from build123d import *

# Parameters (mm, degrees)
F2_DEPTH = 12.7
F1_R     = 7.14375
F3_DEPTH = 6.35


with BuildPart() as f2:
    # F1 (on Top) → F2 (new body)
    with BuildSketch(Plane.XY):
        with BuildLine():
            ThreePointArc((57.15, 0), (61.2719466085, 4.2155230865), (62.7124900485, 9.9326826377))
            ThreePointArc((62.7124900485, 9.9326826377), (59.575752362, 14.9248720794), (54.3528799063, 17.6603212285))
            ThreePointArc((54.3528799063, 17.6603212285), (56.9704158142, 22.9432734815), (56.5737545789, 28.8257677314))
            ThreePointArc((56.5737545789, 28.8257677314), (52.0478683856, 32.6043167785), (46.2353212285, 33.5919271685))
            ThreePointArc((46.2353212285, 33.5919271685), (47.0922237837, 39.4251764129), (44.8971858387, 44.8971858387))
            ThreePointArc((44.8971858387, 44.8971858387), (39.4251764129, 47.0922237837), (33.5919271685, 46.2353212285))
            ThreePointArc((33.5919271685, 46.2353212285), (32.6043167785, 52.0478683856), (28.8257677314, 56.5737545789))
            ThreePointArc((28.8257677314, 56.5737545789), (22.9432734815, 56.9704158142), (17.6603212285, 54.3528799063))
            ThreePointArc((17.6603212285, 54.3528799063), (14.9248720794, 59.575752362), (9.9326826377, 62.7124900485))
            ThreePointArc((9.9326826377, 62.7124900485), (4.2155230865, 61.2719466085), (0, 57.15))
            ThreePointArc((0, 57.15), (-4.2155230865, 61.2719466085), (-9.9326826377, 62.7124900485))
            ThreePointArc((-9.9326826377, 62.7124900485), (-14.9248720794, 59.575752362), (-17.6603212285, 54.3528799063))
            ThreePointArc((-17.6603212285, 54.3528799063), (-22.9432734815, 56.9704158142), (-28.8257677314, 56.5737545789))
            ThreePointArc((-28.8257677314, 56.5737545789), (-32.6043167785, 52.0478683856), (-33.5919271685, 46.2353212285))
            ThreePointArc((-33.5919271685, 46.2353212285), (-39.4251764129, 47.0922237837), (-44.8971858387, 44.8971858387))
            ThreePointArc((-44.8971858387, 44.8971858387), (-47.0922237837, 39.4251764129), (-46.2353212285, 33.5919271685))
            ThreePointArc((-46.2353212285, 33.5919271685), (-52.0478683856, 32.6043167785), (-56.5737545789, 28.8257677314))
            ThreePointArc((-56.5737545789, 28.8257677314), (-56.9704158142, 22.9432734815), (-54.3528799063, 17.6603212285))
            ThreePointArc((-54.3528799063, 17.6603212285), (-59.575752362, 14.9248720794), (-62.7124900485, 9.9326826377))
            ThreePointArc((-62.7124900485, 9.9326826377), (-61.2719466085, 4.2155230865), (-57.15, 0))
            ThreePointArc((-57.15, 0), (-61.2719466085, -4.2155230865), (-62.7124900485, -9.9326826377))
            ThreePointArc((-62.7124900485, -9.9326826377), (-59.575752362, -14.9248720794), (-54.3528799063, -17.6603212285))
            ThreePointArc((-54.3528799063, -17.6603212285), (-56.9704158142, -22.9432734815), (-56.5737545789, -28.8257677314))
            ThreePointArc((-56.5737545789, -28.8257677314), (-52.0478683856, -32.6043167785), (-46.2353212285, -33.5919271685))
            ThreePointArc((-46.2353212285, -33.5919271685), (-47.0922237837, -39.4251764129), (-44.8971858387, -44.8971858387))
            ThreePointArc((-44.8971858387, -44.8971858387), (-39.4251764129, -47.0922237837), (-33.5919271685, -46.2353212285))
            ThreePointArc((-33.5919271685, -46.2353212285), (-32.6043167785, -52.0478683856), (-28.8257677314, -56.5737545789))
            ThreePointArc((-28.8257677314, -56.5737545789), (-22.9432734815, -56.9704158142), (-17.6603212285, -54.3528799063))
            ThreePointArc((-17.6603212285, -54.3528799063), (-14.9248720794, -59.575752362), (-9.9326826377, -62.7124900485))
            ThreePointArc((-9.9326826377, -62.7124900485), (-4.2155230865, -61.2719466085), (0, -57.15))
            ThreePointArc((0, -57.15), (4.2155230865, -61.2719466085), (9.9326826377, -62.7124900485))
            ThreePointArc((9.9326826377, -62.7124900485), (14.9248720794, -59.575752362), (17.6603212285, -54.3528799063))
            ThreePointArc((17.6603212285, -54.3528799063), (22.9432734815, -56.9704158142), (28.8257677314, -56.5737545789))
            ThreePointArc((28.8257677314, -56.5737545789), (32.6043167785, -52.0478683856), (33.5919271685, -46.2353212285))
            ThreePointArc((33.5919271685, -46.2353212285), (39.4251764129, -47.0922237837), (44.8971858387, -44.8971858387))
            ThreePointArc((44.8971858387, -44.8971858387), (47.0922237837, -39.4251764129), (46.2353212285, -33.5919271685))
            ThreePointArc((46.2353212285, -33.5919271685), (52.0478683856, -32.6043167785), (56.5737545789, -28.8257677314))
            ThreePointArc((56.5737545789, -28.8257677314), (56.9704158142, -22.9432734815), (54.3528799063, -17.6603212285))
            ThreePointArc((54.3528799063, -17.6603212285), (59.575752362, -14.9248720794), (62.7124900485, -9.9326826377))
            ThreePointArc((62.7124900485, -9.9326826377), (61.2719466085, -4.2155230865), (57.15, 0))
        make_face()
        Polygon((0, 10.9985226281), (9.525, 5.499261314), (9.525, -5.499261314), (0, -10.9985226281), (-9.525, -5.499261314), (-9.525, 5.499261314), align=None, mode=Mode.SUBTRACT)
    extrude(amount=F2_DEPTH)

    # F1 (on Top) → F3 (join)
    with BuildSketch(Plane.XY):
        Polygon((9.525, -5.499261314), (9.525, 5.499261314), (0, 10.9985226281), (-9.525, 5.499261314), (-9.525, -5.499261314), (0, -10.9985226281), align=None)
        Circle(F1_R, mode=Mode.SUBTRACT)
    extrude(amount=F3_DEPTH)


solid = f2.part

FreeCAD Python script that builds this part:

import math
import FreeCAD as App
import Part
import Sketcher

V = App.Vector
Q = App.Units.Quantity


def add_polygon(sketch, points):
    """Adds a closed chain of lines whose ends are joined by coincident constraints."""
    first, n = sketch.GeometryCount, len(points)
    for a, b in zip(points, points[1:] + points[:1]):
        sketch.addGeometry(Part.LineSegment(App.Vector(*a, 0), App.Vector(*b, 0)), False)
    for i in range(n):
        sketch.addConstraint(Sketcher.Constraint("Coincident", first + i, 2, first + (i + 1) % n, 1))

doc = App.newDocument("Part")
body = doc.addObject("PartDesign::Body", "Body")

# Sketch on XY plane
sketch1 = body.newObject("Sketcher::SketchObject", "Sketch")
sketch1.AttachmentSupport = (doc.getObject("XY_Plane"), [""])
sketch1.MapMode = "FlatFace"
sketch1.addGeometry(Part.ArcOfCircle(Part.Circle(V(51, 10, 0), V(0, 0, 1), 11), math.radians(-59), math.radians(1)), False)  # 0
sketch1.addGeometry(Part.ArcOfCircle(Part.Circle(V(52, 7, 0), V(0, 0, 1), 11), math.radians(17), math.radians(77)), False)  # 1
sketch1.addGeometry(Part.ArcOfCircle(Part.Circle(V(46, 25, 0), V(0, 0, 1), 11), math.radians(-41), math.radians(19)), False)  # 2
sketch1.addGeometry(Part.ArcOfCircle(Part.Circle(V(47, 22, 0), V(0, 0, 1), 11), math.radians(35), math.radians(95)), False)  # 3
sketch1.addGeometry(Part.ArcOfCircle(Part.Circle(V(36, 38, 0), V(0, 0, 1), 11), math.radians(-23), math.radians(37)), False)  # 4
sketch1.addGeometry(Part.ArcOfCircle(Part.Circle(V(38, 36, 0), V(0, 0, 1), 11), math.radians(53), math.radians(113)), False)  # 5
sketch1.addGeometry(Part.ArcOfCircle(Part.Circle(V(22, 47, 0), V(0, 0, 1), 11), math.radians(-5), math.radians(55)), False)  # 6
sketch1.addGeometry(Part.ArcOfCircle(Part.Circle(V(25, 46, 0), V(0, 0, 1), 11), math.radians(71), math.radians(131)), False)  # 7
sketch1.addGeometry(Part.ArcOfCircle(Part.Circle(V(7, 52, 0), V(0, 0, 1), 11), math.radians(13), math.radians(73)), False)  # 8
sketch1.addGeometry(Part.ArcOfCircle(Part.Circle(V(10, 51, 0), V(0, 0, 1), 11), math.radians(89), math.radians(149)), False)  # 9
sketch1.addGeometry(Part.ArcOfCircle(Part.Circle(V(-10, 51, 0), V(0, 0, 1), 11), math.radians(31), math.radians(91)), False)  # 10
sketch1.addGeometry(Part.ArcOfCircle(Part.Circle(V(-7, 52, 0), V(0, 0, 1), 11), math.radians(107), math.radians(167)), False)  # 11
sketch1.addGeometry(Part.ArcOfCircle(Part.Circle(V(-25, 46, 0), V(0, 0, 1), 11), math.radians(49), math.radians(109)), False)  # 12
sketch1.addGeometry(Part.ArcOfCircle(Part.Circle(V(-22, 47, 0), V(0, 0, 1), 11), math.radians(125), math.radians(185)), False)  # 13
sketch1.addGeometry(Part.ArcOfCircle(Part.Circle(V(-38, 36, 0), V(0, 0, 1), 11), math.radians(67), math.radians(127)), False)  # 14
sketch1.addGeometry(Part.ArcOfCircle(Part.Circle(V(-36, 38, 0), V(0, 0, 1), 11), math.radians(143), math.radians(203)), False)  # 15
sketch1.addGeometry(Part.ArcOfCircle(Part.Circle(V(-47, 22, 0), V(0, 0, 1), 11), math.radians(85), math.radians(145)), False)  # 16
sketch1.addGeometry(Part.ArcOfCircle(Part.Circle(V(-46, 25, 0), V(0, 0, 1), 11), math.radians(161), math.radians(221)), False)  # 17
sketch1.addGeometry(Part.ArcOfCircle(Part.Circle(V(-52, 7, 0), V(0, 0, 1), 11), math.radians(103), math.radians(163)), False)  # 18
sketch1.addGeometry(Part.ArcOfCircle(Part.Circle(V(-51, 10, 0), V(0, 0, 1), 11), math.radians(179), math.radians(239)), False)  # 19
sketch1.addGeometry(Part.ArcOfCircle(Part.Circle(V(-51, -10, 0), V(0, 0, 1), 11), math.radians(121), math.radians(181)), False)  # 20
sketch1.addGeometry(Part.ArcOfCircle(Part.Circle(V(-52, -7, 0), V(0, 0, 1), 11), math.radians(-163), math.radians(-103)), False)  # 21
sketch1.addGeometry(Part.ArcOfCircle(Part.Circle(V(-46, -25, 0), V(0, 0, 1), 11), math.radians(139), math.radians(199)), False)  # 22
sketch1.addGeometry(Part.ArcOfCircle(Part.Circle(V(-47, -22, 0), V(0, 0, 1), 11), math.radians(-145), math.radians(-85)), False)  # 23
sketch1.addGeometry(Part.ArcOfCircle(Part.Circle(V(-36, -38, 0), V(0, 0, 1), 11), math.radians(157), math.radians(217)), False)  # 24
sketch1.addGeometry(Part.ArcOfCircle(Part.Circle(V(-38, -36, 0), V(0, 0, 1), 11), math.radians(-127), math.radians(-67)), False)  # 25
sketch1.addGeometry(Part.ArcOfCircle(Part.Circle(V(-22, -47, 0), V(0, 0, 1), 11), math.radians(175), math.radians(235)), False)  # 26
sketch1.addGeometry(Part.ArcOfCircle(Part.Circle(V(-25, -46, 0), V(0, 0, 1), 11), math.radians(-109), math.radians(-49)), False)  # 27
sketch1.addGeometry(Part.ArcOfCircle(Part.Circle(V(-7, -52, 0), V(0, 0, 1), 11), math.radians(-167), math.radians(-107)), False)  # 28
sketch1.addGeometry(Part.ArcOfCircle(Part.Circle(V(-10, -51, 0), V(0, 0, 1), 11), math.radians(-91), math.radians(-31)), False)  # 29
sketch1.addGeometry(Part.ArcOfCircle(Part.Circle(V(10, -51, 0), V(0, 0, 1), 11), math.radians(-149), math.radians(-89)), False)  # 30
sketch1.addGeometry(Part.ArcOfCircle(Part.Circle(V(7, -52, 0), V(0, 0, 1), 11), math.radians(-73), math.radians(-13)), False)  # 31
sketch1.addGeometry(Part.ArcOfCircle(Part.Circle(V(25, -46, 0), V(0, 0, 1), 11), math.radians(-131), math.radians(-71)), False)  # 32
sketch1.addGeometry(Part.ArcOfCircle(Part.Circle(V(22, -47, 0), V(0, 0, 1), 11), math.radians(-55), math.radians(5)), False)  # 33
sketch1.addGeometry(Part.ArcOfCircle(Part.Circle(V(38, -36, 0), V(0, 0, 1), 11), math.radians(-113), math.radians(-53)), False)  # 34
sketch1.addGeometry(Part.ArcOfCircle(Part.Circle(V(36, -38, 0), V(0, 0, 1), 11), math.radians(-37), math.radians(23)), False)  # 35
sketch1.addGeometry(Part.ArcOfCircle(Part.Circle(V(47, -22, 0), V(0, 0, 1), 11), math.radians(-95), math.radians(-35)), False)  # 36
sketch1.addGeometry(Part.ArcOfCircle(Part.Circle(V(46, -25, 0), V(0, 0, 1), 11), math.radians(-19), math.radians(41)), False)  # 37
sketch1.addGeometry(Part.ArcOfCircle(Part.Circle(V(52, -7, 0), V(0, 0, 1), 11), math.radians(-77), math.radians(-17)), False)  # 38
sketch1.addGeometry(Part.ArcOfCircle(Part.Circle(V(51, -10, 0), V(0, 0, 1), 11), math.radians(-1), math.radians(59)), False)  # 39
add_polygon(sketch1, [(-10, 5), (0, 11), (10, 5), (10, -5), (0, -11), (-10, -5)])  # lines 40-45
sketch1.addConstraint(Sketcher.Constraint("Coincident", 0, 2, 1, 1))
sketch1.addConstraint(Sketcher.Constraint("Coincident", 1, 2, 2, 1))
sketch1.addConstraint(Sketcher.Constraint("Coincident", 2, 2, 3, 1))
sketch1.addConstraint(Sketcher.Constraint("Coincident", 3, 2, 4, 1))
sketch1.addConstraint(Sketcher.Constraint("Coincident", 4, 2, 5, 1))
sketch1.addConstraint(Sketcher.Constraint("Coincident", 5, 2, 6, 1))
sketch1.addConstraint(Sketcher.Constraint("Coincident", 6, 2, 7, 1))
sketch1.addConstraint(Sketcher.Constraint("Coincident", 7, 2, 8, 1))
sketch1.addConstraint(Sketcher.Constraint("Coincident", 8, 2, 9, 1))
sketch1.addConstraint(Sketcher.Constraint("Coincident", 9, 2, 10, 1))
sketch1.addConstraint(Sketcher.Constraint("Coincident", 10, 2, 11, 1))
sketch1.addConstraint(Sketcher.Constraint("Coincident", 11, 2, 12, 1))
sketch1.addConstraint(Sketcher.Constraint("Coincident", 12, 2, 13, 1))
sketch1.addConstraint(Sketcher.Constraint("Coincident", 13, 2, 14, 1))
sketch1.addConstraint(Sketcher.Constraint("Coincident", 14, 2, 15, 1))
sketch1.addConstraint(Sketcher.Constraint("Coincident", 15, 2, 16, 1))
sketch1.addConstraint(Sketcher.Constraint("Coincident", 16, 2, 17, 1))
sketch1.addConstraint(Sketcher.Constraint("Coincident", 17, 2, 18, 1))
sketch1.addConstraint(Sketcher.Constraint("Coincident", 18, 2, 19, 1))
sketch1.addConstraint(Sketcher.Constraint("Coincident", 19, 2, 20, 1))
sketch1.addConstraint(Sketcher.Constraint("Coincident", 20, 2, 21, 1))
sketch1.addConstraint(Sketcher.Constraint("Coincident", 21, 2, 22, 1))
sketch1.addConstraint(Sketcher.Constraint("Coincident", 22, 2, 23, 1))
sketch1.addConstraint(Sketcher.Constraint("Coincident", 23, 2, 24, 1))
sketch1.addConstraint(Sketcher.Constraint("Coincident", 24, 2, 25, 1))
sketch1.addConstraint(Sketcher.Constraint("Coincident", 25, 2, 26, 1))
sketch1.addConstraint(Sketcher.Constraint("Coincident", 26, 2, 27, 1))
sketch1.addConstraint(Sketcher.Constraint("Coincident", 27, 2, 28, 1))
sketch1.addConstraint(Sketcher.Constraint("Coincident", 28, 2, 29, 1))
sketch1.addConstraint(Sketcher.Constraint("Coincident", 29, 2, 30, 1))
sketch1.addConstraint(Sketcher.Constraint("Coincident", 30, 2, 31, 1))
sketch1.addConstraint(Sketcher.Constraint("Coincident", 31, 2, 32, 1))
sketch1.addConstraint(Sketcher.Constraint("Coincident", 32, 2, 33, 1))
sketch1.addConstraint(Sketcher.Constraint("Coincident", 33, 2, 34, 1))
sketch1.addConstraint(Sketcher.Constraint("Coincident", 34, 2, 35, 1))
sketch1.addConstraint(Sketcher.Constraint("Coincident", 35, 2, 36, 1))
sketch1.addConstraint(Sketcher.Constraint("Coincident", 36, 2, 37, 1))
sketch1.addConstraint(Sketcher.Constraint("Coincident", 37, 2, 38, 1))
sketch1.addConstraint(Sketcher.Constraint("Coincident", 38, 2, 39, 1))
sketch1.addConstraint(Sketcher.Constraint("Coincident", 39, 2, 0, 1))
sketch1.addConstraint(Sketcher.Constraint("Vertical", 42))
sketch1.addConstraint(Sketcher.Constraint("Vertical", 45))
sketch1.addConstraint(Sketcher.Constraint("Equal", 0, 1))
sketch1.addConstraint(Sketcher.Constraint("Equal", 1, 2))
sketch1.addConstraint(Sketcher.Constraint("Equal", 2, 3))
sketch1.addConstraint(Sketcher.Constraint("Equal", 3, 4))
sketch1.addConstraint(Sketcher.Constraint("Equal", 4, 5))
sketch1.addConstraint(Sketcher.Constraint("Equal", 5, 6))
sketch1.addConstraint(Sketcher.Constraint("Equal", 6, 7))
sketch1.addConstraint(Sketcher.Constraint("Equal", 7, 8))
sketch1.addConstraint(Sketcher.Constraint("Equal", 8, 9))
sketch1.addConstraint(Sketcher.Constraint("Equal", 9, 10))
sketch1.addConstraint(Sketcher.Constraint("Equal", 10, 11))
sketch1.addConstraint(Sketcher.Constraint("Equal", 11, 12))
sketch1.addConstraint(Sketcher.Constraint("Equal", 12, 13))
sketch1.addConstraint(Sketcher.Constraint("Equal", 13, 14))
sketch1.addConstraint(Sketcher.Constraint("Equal", 14, 15))
sketch1.addConstraint(Sketcher.Constraint("Equal", 15, 16))
sketch1.addConstraint(Sketcher.Constraint("Equal", 16, 17))
sketch1.addConstraint(Sketcher.Constraint("Equal", 17, 18))
sketch1.addConstraint(Sketcher.Constraint("Equal", 18, 19))
sketch1.addConstraint(Sketcher.Constraint("Equal", 19, 20))
sketch1.addConstraint(Sketcher.Constraint("Equal", 20, 21))
sketch1.addConstraint(Sketcher.Constraint("Equal", 21, 22))
sketch1.addConstraint(Sketcher.Constraint("Equal", 22, 23))
sketch1.addConstraint(Sketcher.Constraint("Equal", 23, 24))
sketch1.addConstraint(Sketcher.Constraint("Equal", 24, 25))
sketch1.addConstraint(Sketcher.Constraint("Equal", 25, 26))
sketch1.addConstraint(Sketcher.Constraint("Equal", 26, 27))
sketch1.addConstraint(Sketcher.Constraint("Equal", 27, 28))
sketch1.addConstraint(Sketcher.Constraint("Equal", 28, 29))
sketch1.addConstraint(Sketcher.Constraint("Equal", 29, 30))
sketch1.addConstraint(Sketcher.Constraint("Equal", 30, 31))
sketch1.addConstraint(Sketcher.Constraint("Equal", 31, 32))
sketch1.addConstraint(Sketcher.Constraint("Equal", 32, 33))
sketch1.addConstraint(Sketcher.Constraint("Equal", 33, 34))
sketch1.addConstraint(Sketcher.Constraint("Equal", 34, 35))
sketch1.addConstraint(Sketcher.Constraint("Equal", 35, 36))
sketch1.addConstraint(Sketcher.Constraint("Equal", 36, 37))
sketch1.addConstraint(Sketcher.Constraint("Equal", 37, 38))
sketch1.addConstraint(Sketcher.Constraint("Equal", 38, 39))
sketch1.addConstraint(Sketcher.Constraint("Symmetric", 0, 3, 20, 3, -1, 1))
sketch1.addConstraint(Sketcher.Constraint("Symmetric", 1, 3, 21, 3, -1, 1))
sketch1.addConstraint(Sketcher.Constraint("Symmetric", 2, 3, 22, 3, -1, 1))
sketch1.addConstraint(Sketcher.Constraint("Symmetric", 3, 3, 23, 3, -1, 1))
sketch1.addConstraint(Sketcher.Constraint("Symmetric", 4, 3, 24, 3, -1, 1))
sketch1.addConstraint(Sketcher.Constraint("Symmetric", 5, 3, 25, 3, -1, 1))
sketch1.addConstraint(Sketcher.Constraint("Symmetric", 6, 3, 26, 3, -1, 1))
sketch1.addConstraint(Sketcher.Constraint("Symmetric", 7, 3, 27, 3, -1, 1))
sketch1.addConstraint(Sketcher.Constraint("Symmetric", 8, 3, 28, 3, -1, 1))
sketch1.addConstraint(Sketcher.Constraint("Symmetric", 9, 3, 29, 3, -1, 1))
sketch1.addConstraint(Sketcher.Constraint("Symmetric", 10, 3, 30, 3, -1, 1))
sketch1.addConstraint(Sketcher.Constraint("Symmetric", 11, 3, 31, 3, -1, 1))
sketch1.addConstraint(Sketcher.Constraint("Symmetric", 12, 3, 32, 3, -1, 1))
sketch1.addConstraint(Sketcher.Constraint("Symmetric", 13, 3, 33, 3, -1, 1))
sketch1.addConstraint(Sketcher.Constraint("Symmetric", 14, 3, 34, 3, -1, 1))
sketch1.addConstraint(Sketcher.Constraint("Symmetric", 15, 3, 35, 3, -1, 1))
sketch1.addConstraint(Sketcher.Constraint("Symmetric", 16, 3, 36, 3, -1, 1))
sketch1.addConstraint(Sketcher.Constraint("Symmetric", 17, 3, 37, 3, -1, 1))
sketch1.addConstraint(Sketcher.Constraint("Symmetric", 18, 3, 38, 3, -1, 1))
sketch1.addConstraint(Sketcher.Constraint("Symmetric", 19, 3, 39, 3, -1, 1))
sketch1.addConstraint(Sketcher.Constraint("Symmetric", 40, 2, 43, 2, -1, 1))
sketch1.addConstraint(Sketcher.Constraint("Symmetric", 41, 2, 44, 2, -1, 1))
sketch1.addConstraint(Sketcher.Constraint("Symmetric", 9, 3, 10, 3, -2))
sketch1.addConstraint(Sketcher.Constraint("Symmetric", 8, 3, 11, 3, -2))
sketch1.addConstraint(Sketcher.Constraint("Symmetric", 7, 3, 12, 3, -2))
sketch1.addConstraint(Sketcher.Constraint("Symmetric", 6, 3, 13, 3, -2))
sketch1.addConstraint(Sketcher.Constraint("Symmetric", 5, 3, 14, 3, -2))
sketch1.addConstraint(Sketcher.Constraint("Symmetric", 4, 3, 15, 3, -2))
sketch1.addConstraint(Sketcher.Constraint("Symmetric", 3, 3, 16, 3, -2))
sketch1.addConstraint(Sketcher.Constraint("Symmetric", 2, 3, 17, 3, -2))
sketch1.addConstraint(Sketcher.Constraint("Symmetric", 1, 3, 18, 3, -2))
sketch1.addConstraint(Sketcher.Constraint("Symmetric", 0, 3, 19, 3, -2))
sketch1.addConstraint(Sketcher.Constraint("PointOnObject", 40, 2, -2))
sketch1.addConstraint(Sketcher.Constraint("Parallel", 40, 43))
sketch1.addConstraint(Sketcher.Constraint("Horizontal", 42, 2, 44, 2))
sketch1.addConstraint(Sketcher.Constraint("Angle", 40, Q("30 deg")))
sketch1.addConstraint(Sketcher.Constraint("DistanceY", -1, 1, 9, 2, Q("2.25 in")))
sketch1.addConstraint(Sketcher.Constraint("DistanceX", 19, 2, -1, 1, Q("2.25 in")))
sketch1.addConstraint(Sketcher.Constraint("DistanceX", -1, 1, 41, 2, Q("0.375 in")))
sketch1.addConstraint(Sketcher.Constraint("Radius", 0, Q("11.310871 mm")))
sketch1.addConstraint(Sketcher.Constraint("DistanceX", -1, 1, 3, 3, Q("47.312399 mm")))
sketch1.addConstraint(Sketcher.Constraint("DistanceY", -1, 1, 6, 3, Q("47.312399 mm")))
sketch1.addConstraint(Sketcher.Constraint("DistanceY", 42, 2, 42, 1, Q("10.998523 mm")))
sketch1.addConstraint(Sketcher.Constraint("DistanceY", -1, 1, 1, 3, Q("6.619092 mm")))
sketch1.addConstraint(Sketcher.Constraint("DistanceX", -1, 1, 8, 3, Q("6.619092 mm")))
sketch1.addConstraint(Sketcher.Constraint("DistanceX", -1, 1, 0, 2, Q("62.71249 mm")))
sketch1.addConstraint(Sketcher.Constraint("DistanceX", -1, 1, 1, 2, Q("54.35288 mm")))
sketch1.addConstraint(Sketcher.Constraint("DistanceY", -1, 1, 1, 2, Q("17.660321 mm")))
sketch1.addConstraint(Sketcher.Constraint("DistanceX", -1, 1, 3, 2, Q("46.235321 mm")))
sketch1.addConstraint(Sketcher.Constraint("DistanceY", -1, 1, 5, 2, Q("46.235321 mm")))
sketch1.addConstraint(Sketcher.Constraint("DistanceX", -1, 1, 7, 2, Q("17.660321 mm")))
sketch1.addConstraint(Sketcher.Constraint("DistanceY", -1, 1, 7, 2, Q("54.35288 mm")))
sketch1.addConstraint(Sketcher.Constraint("DistanceY", -1, 1, 8, 2, Q("62.71249 mm")))
sketch1.addConstraint(Sketcher.Constraint("DistanceX", -1, 1, 2, 3, Q("45.876866 mm")))
sketch1.addConstraint(Sketcher.Constraint("DistanceY", -1, 1, 3, 3, Q("22.332455 mm")))
sketch1.addConstraint(Sketcher.Constraint("DistanceX", -1, 1, 4, 3, Q("35.859762 mm")))
sketch1.addConstraint(Sketcher.Constraint("DistanceX", -1, 1, 5, 3, Q("38.095658 mm")))
sketch1.addConstraint(Sketcher.Constraint("DistanceY", -1, 1, 5, 3, Q("35.859762 mm")))
sketch1.addConstraint(Sketcher.Constraint("DistanceX", -1, 1, 7, 3, Q("25.149847 mm")))
pad1 = body.newObject("PartDesign::Pad", "Pad")
pad1.Profile = sketch1
pad1.Length = Q("0.5 in")

# Sketch on XY plane
sketch2 = body.newObject("Sketcher::SketchObject", "Sketch001")
sketch2.AttachmentSupport = (doc.getObject("XY_Plane"), [""])
sketch2.MapMode = "FlatFace"
add_polygon(sketch2, [(10, -5), (10, 5), (0, 11), (-10, 5), (-10, -5), (0, -11)])  # lines 0-5
sketch2.addGeometry(Part.Circle(V(0, 0, 0), V(0, 0, 1), 7), False)  # 6
sketch2.addConstraint(Sketcher.Constraint("Vertical", 0))
sketch2.addConstraint(Sketcher.Constraint("Vertical", 3))
sketch2.addConstraint(Sketcher.Constraint("Coincident", 6, 3, -1, 1))
sketch2.addConstraint(Sketcher.Constraint("Symmetric", 0, 2, 3, 2, -1, 1))
sketch2.addConstraint(Sketcher.Constraint("Symmetric", 1, 2, 4, 2, -1, 1))
sketch2.addConstraint(Sketcher.Constraint("PointOnObject", 1, 2, -2))
sketch2.addConstraint(Sketcher.Constraint("Parallel", 2, 5))
sketch2.addConstraint(Sketcher.Constraint("Horizontal", 0, 2, 2, 2))
sketch2.addConstraint(Sketcher.Constraint("Diameter", 6, Q("0.5625 in")))
sketch2.addConstraint(Sketcher.Constraint("Angle", 1, Q("150 deg")))
sketch2.addConstraint(Sketcher.Constraint("DistanceX", 2, 2, 0, 2, Q("0.75 in")))
sketch2.addConstraint(Sketcher.Constraint("DistanceY", 0, 1, 0, 2, Q("10.998523 mm")))
pad2 = body.newObject("PartDesign::Pad", "Pad001")
pad2.Profile = sketch2
pad2.Length = Q("0.25 in")

doc.recompute()
